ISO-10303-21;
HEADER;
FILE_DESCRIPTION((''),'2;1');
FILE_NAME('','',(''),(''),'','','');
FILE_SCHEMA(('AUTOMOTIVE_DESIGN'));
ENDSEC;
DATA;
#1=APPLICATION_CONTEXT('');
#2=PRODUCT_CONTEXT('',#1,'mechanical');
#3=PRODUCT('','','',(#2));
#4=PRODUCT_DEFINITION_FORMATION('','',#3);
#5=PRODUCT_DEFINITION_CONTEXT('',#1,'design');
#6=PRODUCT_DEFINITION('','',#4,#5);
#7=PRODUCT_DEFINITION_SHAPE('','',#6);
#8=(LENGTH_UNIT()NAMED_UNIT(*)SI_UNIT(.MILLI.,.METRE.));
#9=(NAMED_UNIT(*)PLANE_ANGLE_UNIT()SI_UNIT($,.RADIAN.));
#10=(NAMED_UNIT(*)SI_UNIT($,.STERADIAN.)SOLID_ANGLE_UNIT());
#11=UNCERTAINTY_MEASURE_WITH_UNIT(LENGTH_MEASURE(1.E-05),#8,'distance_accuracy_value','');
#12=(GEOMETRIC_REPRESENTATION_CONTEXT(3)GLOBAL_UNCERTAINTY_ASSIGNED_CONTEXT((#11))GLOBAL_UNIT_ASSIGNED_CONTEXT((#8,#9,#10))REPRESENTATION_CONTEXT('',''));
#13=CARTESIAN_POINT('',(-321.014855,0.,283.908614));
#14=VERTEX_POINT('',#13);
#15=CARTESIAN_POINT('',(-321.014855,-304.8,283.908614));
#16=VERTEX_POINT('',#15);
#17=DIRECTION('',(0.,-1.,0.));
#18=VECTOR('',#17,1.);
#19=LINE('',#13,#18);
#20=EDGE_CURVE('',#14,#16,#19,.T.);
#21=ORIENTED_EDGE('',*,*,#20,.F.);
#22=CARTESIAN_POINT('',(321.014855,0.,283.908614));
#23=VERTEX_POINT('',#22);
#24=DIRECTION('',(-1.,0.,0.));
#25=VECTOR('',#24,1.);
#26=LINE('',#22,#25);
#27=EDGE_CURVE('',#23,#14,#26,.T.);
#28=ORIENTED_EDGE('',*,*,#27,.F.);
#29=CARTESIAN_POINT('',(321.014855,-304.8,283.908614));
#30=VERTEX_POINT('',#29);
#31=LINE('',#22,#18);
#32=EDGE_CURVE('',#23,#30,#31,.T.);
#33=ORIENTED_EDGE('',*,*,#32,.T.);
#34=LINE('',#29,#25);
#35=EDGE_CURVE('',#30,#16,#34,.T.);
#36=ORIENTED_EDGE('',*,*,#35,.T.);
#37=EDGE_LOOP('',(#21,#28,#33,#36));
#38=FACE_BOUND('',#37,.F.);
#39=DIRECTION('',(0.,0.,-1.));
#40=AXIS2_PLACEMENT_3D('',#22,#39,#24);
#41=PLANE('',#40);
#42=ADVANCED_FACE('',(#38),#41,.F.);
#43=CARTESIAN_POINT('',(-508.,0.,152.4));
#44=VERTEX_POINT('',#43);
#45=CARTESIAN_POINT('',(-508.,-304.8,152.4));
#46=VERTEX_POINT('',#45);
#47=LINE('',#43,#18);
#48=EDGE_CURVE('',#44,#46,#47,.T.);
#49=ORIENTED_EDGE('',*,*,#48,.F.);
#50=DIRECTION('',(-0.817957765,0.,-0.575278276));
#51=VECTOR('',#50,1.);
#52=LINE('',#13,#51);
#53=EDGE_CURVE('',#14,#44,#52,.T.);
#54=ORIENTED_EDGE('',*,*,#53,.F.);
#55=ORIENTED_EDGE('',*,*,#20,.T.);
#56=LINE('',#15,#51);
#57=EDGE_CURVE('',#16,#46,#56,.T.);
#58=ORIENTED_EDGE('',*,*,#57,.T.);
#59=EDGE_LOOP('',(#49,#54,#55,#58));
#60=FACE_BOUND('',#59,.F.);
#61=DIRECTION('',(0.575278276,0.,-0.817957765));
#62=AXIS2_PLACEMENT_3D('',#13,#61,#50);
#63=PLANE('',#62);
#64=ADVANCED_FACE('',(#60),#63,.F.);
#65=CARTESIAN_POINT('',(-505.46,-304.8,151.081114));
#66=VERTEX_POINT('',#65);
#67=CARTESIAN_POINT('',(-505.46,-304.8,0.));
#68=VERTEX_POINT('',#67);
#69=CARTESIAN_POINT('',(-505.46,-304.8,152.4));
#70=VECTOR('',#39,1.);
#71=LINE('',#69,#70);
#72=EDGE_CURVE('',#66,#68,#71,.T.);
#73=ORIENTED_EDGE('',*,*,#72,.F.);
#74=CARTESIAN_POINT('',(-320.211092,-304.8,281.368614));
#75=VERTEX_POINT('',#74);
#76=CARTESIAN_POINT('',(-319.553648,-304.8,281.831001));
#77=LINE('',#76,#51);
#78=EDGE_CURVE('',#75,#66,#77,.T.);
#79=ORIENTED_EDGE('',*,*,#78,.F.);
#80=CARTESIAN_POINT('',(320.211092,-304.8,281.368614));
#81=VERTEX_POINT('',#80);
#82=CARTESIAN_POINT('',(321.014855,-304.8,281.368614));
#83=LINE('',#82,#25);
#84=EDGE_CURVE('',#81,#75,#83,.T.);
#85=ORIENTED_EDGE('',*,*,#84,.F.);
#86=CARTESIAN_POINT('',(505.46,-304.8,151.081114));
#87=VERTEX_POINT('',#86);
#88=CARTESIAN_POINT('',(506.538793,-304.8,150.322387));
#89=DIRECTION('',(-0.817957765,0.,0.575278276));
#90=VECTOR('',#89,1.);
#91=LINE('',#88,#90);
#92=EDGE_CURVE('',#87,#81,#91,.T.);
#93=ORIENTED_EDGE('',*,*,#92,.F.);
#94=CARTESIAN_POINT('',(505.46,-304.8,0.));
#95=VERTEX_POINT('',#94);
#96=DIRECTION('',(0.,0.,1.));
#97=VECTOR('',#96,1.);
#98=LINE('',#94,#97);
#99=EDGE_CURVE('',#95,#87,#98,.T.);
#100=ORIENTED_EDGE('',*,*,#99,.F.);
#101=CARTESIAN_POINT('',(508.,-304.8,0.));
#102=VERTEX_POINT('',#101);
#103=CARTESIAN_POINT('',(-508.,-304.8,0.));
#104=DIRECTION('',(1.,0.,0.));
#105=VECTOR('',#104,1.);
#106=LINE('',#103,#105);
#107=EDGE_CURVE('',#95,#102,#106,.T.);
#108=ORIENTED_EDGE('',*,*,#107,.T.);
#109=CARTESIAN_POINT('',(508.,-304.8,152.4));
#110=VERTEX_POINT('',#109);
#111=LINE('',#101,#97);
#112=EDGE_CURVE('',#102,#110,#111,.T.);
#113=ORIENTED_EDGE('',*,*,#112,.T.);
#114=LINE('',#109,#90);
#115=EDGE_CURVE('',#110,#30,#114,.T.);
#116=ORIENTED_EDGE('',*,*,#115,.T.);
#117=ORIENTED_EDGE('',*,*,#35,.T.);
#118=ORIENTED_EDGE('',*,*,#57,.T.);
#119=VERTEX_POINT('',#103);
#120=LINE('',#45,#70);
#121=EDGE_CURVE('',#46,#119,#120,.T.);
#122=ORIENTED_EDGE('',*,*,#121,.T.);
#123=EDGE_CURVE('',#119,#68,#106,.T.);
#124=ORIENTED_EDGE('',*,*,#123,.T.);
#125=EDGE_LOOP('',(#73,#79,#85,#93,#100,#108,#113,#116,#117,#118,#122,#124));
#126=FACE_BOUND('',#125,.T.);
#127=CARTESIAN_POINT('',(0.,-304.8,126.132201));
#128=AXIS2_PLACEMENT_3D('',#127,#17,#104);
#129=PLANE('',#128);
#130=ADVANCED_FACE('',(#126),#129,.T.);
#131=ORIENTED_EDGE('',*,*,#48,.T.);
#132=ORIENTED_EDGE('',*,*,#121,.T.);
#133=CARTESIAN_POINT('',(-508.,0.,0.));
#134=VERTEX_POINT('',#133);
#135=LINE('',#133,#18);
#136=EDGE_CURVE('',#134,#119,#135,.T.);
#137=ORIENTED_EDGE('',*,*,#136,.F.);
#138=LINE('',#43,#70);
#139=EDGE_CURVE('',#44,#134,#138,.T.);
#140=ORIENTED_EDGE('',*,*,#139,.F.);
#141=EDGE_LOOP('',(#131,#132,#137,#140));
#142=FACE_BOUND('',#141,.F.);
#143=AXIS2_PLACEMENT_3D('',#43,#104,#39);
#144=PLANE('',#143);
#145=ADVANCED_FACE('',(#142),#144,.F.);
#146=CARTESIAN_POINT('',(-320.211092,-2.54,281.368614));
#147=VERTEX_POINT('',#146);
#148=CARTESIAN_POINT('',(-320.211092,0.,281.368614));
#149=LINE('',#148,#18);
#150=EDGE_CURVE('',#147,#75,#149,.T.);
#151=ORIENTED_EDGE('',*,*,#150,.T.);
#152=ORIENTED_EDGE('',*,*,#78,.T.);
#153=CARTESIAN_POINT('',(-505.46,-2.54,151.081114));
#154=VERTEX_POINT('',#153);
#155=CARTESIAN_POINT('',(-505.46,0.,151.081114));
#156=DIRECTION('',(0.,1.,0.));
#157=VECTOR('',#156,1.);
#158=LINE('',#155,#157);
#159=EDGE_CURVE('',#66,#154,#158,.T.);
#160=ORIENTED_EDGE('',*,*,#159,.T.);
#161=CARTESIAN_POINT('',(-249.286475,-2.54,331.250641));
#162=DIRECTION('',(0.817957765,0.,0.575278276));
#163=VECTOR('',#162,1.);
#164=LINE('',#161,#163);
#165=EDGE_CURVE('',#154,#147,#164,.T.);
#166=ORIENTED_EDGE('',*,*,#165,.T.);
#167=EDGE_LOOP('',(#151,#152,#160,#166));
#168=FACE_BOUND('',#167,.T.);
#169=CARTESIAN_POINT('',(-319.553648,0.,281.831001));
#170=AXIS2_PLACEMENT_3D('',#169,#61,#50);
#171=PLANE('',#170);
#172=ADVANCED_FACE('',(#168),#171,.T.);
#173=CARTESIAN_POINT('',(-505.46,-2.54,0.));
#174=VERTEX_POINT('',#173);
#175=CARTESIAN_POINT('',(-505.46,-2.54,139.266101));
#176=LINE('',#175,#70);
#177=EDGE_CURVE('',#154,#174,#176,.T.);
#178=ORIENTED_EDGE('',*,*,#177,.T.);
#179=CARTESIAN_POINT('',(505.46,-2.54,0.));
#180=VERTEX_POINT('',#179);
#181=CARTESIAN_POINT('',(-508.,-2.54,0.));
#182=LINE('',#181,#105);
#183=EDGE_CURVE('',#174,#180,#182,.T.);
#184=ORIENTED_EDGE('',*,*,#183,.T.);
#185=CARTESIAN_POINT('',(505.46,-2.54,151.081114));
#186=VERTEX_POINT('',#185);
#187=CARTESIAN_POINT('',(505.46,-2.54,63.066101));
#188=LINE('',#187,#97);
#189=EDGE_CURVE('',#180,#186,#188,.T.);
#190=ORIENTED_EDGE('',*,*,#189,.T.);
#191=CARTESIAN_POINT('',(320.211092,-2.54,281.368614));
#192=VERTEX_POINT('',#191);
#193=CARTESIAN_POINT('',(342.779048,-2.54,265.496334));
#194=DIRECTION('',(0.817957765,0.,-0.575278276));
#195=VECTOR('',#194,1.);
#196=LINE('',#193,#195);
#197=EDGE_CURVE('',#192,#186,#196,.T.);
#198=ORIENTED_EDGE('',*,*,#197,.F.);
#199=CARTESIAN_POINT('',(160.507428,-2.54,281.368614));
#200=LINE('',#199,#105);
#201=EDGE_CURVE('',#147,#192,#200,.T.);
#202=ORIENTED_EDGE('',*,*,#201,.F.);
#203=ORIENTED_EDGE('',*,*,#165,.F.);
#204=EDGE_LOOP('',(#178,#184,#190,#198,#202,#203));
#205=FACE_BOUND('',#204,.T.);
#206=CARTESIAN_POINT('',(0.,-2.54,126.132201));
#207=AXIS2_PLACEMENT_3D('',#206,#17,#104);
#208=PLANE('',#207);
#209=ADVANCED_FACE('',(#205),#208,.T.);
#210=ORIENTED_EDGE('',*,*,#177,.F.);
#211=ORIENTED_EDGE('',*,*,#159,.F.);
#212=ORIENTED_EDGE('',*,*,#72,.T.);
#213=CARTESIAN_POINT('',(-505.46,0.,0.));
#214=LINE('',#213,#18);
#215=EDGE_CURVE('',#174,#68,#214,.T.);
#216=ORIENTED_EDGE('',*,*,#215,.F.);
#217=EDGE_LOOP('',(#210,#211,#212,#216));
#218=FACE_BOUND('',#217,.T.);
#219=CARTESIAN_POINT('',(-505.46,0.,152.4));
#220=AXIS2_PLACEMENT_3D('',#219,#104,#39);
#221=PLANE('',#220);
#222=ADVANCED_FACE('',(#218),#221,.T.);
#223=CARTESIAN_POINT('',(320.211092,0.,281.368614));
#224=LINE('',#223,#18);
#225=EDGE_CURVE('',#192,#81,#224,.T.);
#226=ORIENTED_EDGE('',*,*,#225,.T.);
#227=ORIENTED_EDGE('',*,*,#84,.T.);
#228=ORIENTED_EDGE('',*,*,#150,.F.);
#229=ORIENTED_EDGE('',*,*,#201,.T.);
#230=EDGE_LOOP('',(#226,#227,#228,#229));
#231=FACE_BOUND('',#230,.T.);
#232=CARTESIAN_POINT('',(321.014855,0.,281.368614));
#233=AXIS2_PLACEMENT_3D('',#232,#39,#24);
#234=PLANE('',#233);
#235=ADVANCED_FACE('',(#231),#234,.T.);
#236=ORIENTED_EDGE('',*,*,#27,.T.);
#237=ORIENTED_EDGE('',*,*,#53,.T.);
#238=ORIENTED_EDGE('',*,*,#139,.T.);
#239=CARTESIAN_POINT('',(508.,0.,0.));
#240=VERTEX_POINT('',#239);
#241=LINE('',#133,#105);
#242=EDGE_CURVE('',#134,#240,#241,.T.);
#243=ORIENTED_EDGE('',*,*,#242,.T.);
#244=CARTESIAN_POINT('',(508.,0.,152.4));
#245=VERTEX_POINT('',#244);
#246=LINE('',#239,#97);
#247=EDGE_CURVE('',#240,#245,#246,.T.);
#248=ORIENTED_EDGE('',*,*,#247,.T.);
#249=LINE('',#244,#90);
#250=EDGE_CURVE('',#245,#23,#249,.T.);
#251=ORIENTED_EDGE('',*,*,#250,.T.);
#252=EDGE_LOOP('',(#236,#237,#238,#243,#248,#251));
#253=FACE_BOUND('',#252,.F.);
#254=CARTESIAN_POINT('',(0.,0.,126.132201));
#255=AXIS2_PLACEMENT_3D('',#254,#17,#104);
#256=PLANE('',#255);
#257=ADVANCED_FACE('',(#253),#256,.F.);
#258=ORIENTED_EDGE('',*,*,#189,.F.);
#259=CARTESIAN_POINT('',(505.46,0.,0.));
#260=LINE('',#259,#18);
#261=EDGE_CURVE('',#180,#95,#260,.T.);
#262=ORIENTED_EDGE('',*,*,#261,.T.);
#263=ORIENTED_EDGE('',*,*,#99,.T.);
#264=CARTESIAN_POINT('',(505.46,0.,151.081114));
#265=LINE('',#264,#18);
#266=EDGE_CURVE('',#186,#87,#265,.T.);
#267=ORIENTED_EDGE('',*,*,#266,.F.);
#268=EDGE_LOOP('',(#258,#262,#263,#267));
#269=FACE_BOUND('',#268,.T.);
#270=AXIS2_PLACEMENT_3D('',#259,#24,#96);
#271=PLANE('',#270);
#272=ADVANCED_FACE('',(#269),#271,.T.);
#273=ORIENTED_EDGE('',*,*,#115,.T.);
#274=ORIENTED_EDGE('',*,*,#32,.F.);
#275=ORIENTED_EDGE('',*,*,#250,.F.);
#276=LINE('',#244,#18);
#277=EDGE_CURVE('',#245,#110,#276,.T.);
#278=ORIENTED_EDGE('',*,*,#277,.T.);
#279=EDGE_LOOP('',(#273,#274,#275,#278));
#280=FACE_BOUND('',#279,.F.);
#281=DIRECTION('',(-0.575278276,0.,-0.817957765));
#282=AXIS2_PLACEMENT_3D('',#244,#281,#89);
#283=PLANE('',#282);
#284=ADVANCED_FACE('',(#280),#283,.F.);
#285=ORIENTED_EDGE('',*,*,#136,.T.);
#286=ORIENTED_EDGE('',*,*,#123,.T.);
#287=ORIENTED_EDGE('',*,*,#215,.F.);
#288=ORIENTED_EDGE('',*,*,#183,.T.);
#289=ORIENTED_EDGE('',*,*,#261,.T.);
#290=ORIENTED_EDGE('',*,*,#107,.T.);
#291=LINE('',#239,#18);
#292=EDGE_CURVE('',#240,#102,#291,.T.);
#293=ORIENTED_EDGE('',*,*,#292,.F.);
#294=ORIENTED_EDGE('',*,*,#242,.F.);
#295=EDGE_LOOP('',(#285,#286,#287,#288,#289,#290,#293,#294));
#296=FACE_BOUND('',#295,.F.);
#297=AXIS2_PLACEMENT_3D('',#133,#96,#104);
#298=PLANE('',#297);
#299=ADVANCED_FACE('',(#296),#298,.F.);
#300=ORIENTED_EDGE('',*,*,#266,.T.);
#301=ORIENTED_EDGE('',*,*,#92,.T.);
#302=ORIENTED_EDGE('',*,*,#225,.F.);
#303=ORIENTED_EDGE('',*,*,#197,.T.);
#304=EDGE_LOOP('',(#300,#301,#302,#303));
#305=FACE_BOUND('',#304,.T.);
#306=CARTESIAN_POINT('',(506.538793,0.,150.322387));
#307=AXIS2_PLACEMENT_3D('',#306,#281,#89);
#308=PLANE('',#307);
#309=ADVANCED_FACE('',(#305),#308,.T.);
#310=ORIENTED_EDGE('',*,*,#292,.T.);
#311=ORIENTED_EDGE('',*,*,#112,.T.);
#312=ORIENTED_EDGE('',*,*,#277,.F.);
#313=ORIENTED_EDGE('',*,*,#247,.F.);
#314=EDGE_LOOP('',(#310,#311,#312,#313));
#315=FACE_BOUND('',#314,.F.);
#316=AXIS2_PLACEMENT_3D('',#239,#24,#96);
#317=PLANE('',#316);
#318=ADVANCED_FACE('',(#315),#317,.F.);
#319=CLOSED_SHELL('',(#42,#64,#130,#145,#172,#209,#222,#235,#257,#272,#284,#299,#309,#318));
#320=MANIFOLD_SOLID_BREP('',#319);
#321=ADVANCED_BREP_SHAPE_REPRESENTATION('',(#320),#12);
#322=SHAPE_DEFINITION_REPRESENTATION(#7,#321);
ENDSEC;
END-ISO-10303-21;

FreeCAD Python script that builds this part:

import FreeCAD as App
import Part
import Sketcher
Q = App.Units.Quantity


def faces_at(feature, points):
    """Names of the faces that lie closest to the given points."""
    faces = feature.Shape.Faces
    near = lambda p: min(range(len(faces)), key=lambda i: faces[i].distToShape(Part.Vertex(*p))[0])
    return sorted({f"Face{near(p) + 1}" for p in points})


def add_polygon(sketch, points):
    """Adds a closed chain of lines whose ends are joined by coincident constraints."""
    first, n = sketch.GeometryCount, len(points)
    for a, b in zip(points, points[1:] + points[:1]):
        sketch.addGeometry(Part.LineSegment(App.Vector(*a, 0), App.Vector(*b, 0)), False)
    for i in range(n):
        sketch.addConstraint(Sketcher.Constraint("Coincident", first + i, 2, first + (i + 1) % n, 1))

doc = App.newDocument("Part")
params = doc.addObject("Spreadsheet::Sheet", "Params")
for row, (alias, value) in enumerate([
    ("sketch1_width", "40 in"),
    ("sketch1_height", "6 in"),
    ("sketch1_length", "9 in"),
    ("pad1_length", "12 in"),
    ("thickness_wall", "0.1 in"),
], start=1):
    params.set(f"A{row}", alias)
    params.set(f"B{row}", "=" + value)
    params.setAlias(f"B{row}", alias)

body = doc.addObject("PartDesign::Body", "Body")

# Sketch on XZ plane
sketch1 = doc.addObject("Sketcher::SketchObject", "Sketch")
body.addObject(sketch1)
sketch1.AttachmentSupport = (doc.XZ_Plane, [""])
sketch1.MapMode = "FlatFace"
add_polygon(sketch1, [(-508, 152), (-508, 0), (508, 0), (508, 152), (321, 284), (-321, 284)])  # lines 0-5
sketch1.addConstraint([
    Sketcher.Constraint("Vertical", 0),
    Sketcher.Constraint("Horizontal", 1),
    Sketcher.Constraint("Vertical", 2),
    Sketcher.Constraint("Horizontal", 4),
    Sketcher.Constraint("Symmetric", 0, 2, 1, 2, -1, 1),
    Sketcher.Constraint("Horizontal", 2, 2, 5, 2),
    Sketcher.Constraint("Equal", 3, 5),
    Sketcher.Constraint("DistanceX", 1, 1, 1, 2, Q("40 in")),
    Sketcher.Constraint("DistanceY", 0, 2, 0, 1, Q("6 in")),
    Sketcher.Constraint("Distance", 3, Q("9 in")),
    Sketcher.Constraint("DistanceX", 4, 2, 4, 1, Q("642.02971 mm")),
])
sketch1.setExpression("Constraints[13]", "Params.sketch1_width")
sketch1.setExpression("Constraints[14]", "Params.sketch1_height")
sketch1.setExpression("Constraints[15]", "Params.sketch1_length")
pad1 = doc.addObject("PartDesign::Pad", "Pad")
body.addObject(pad1)
pad1.Profile = sketch1
pad1.setExpression("Length", "Params.pad1_length")
doc.recompute()

thickness = doc.addObject("PartDesign::Thickness", "Thickness")
body.addObject(thickness)
thickness.Base = (pad1, faces_at(pad1, [(0, -304.8, 141.954), (0, -152.4, 0)]))
thickness.setExpression("Value", "Params.thickness_wall")
thickness.Reversed = True
thickness.Join = "Arc"

doc.recompute()
